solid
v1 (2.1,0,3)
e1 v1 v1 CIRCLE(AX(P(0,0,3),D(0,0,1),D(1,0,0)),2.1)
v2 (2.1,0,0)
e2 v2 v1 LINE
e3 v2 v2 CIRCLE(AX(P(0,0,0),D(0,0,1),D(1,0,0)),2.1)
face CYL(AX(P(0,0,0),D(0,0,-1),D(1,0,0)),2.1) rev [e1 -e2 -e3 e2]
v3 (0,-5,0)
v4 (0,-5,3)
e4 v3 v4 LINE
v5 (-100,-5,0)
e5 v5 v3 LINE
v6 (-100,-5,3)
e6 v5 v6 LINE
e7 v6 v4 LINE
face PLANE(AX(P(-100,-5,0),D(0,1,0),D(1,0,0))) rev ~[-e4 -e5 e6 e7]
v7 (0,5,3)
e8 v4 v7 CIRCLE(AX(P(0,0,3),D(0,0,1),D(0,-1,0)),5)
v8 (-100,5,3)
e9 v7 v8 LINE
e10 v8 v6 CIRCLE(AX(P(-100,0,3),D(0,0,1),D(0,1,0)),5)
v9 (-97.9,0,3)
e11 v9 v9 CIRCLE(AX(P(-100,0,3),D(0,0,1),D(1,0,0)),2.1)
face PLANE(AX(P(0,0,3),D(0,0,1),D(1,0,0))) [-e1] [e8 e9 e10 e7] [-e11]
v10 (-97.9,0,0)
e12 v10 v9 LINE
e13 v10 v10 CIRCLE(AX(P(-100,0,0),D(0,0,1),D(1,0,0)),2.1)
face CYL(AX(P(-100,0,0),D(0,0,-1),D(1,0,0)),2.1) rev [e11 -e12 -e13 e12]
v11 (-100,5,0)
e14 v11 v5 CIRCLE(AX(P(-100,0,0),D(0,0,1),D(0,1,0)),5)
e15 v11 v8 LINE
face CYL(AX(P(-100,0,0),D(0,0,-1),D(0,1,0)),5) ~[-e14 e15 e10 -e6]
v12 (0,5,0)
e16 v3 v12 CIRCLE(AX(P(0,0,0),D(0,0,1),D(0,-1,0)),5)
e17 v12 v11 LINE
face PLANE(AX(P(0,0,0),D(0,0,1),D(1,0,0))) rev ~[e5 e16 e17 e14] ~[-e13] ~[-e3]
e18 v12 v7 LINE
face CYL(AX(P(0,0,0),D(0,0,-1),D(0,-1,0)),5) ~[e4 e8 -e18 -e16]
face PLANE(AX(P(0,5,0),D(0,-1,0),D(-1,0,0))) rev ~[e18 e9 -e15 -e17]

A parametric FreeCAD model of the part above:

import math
import FreeCAD as App
import Part
import Sketcher
from FreeCAD import Vector
Q = App.Units.Quantity

doc = App.newDocument("Part")
params = doc.addObject("Spreadsheet::Sheet", "Params")
for row, (alias, value) in enumerate([
    ("sketch1_radius", "5 mm"),
    ("sketch1_diameter", "4.2 mm"),
    ("sketch1_width", "100 mm"),
    ("pad1_length", "3 mm"),
], start=1):
    params.set(f"A{row}", alias)
    params.set(f"B{row}", "=" + value)
    params.setAlias(f"B{row}", alias)

body = doc.addObject("PartDesign::Body", "Body")

sketch1 = doc.addObject("Sketcher::SketchObject", "Sketch")
body.addObject(sketch1)
sketch1.AttachmentSupport = (doc.XY_Plane, [""])
sketch1.MapMode = "FlatFace"
sketch1.addGeometry([
    Part.ArcOfCircle(Part.Circle(Vector(0, 0, 0), Vector(0, 0, 1), 5), math.radians(-90), math.radians(90)),
    Part.LineSegment(Vector(0, 5, 0), Vector(-100, 5, 0)),
    Part.ArcOfCircle(Part.Circle(Vector(-100, 0, 0), Vector(0, 0, 1), 5), math.radians(90), math.radians(270)),
    Part.LineSegment(Vector(-100, -5, 0), Vector(0, -5, 0)),
    Part.Circle(Vector(-100, 0, 0), Vector(0, 0, 1), 2.1),
    Part.Circle(Vector(0, 0, 0), Vector(0, 0, 1), 2.1),
], False)
sketch1.addConstraint([
    Sketcher.Constraint("Tangent", 0, 2, 1, 1),
    Sketcher.Constraint("Tangent", 1, 2, 2, 1),
    Sketcher.Constraint("Tangent", 2, 2, 3, 1),
    Sketcher.Constraint("Tangent", 3, 2, 0, 1),
    Sketcher.Constraint("Horizontal", 1),
    Sketcher.Constraint("Horizontal", 3),
    Sketcher.Constraint("Coincident", 0, 3, -1, 1),
    Sketcher.Constraint("Coincident", 5, 3, -1, 1),
    Sketcher.Constraint("Coincident", 4, 3, 2, 3),
    Sketcher.Constraint("Equal", 4, 5),
    Sketcher.Constraint("Radius", 0, Q("5 mm")),
    Sketcher.Constraint("Diameter", 4, Q("4.2 mm")),
    Sketcher.Constraint("DistanceX", 1, 2, 1, 1, Q("100 mm")),
])
sketch1.setExpression("Constraints[10]", "Params.sketch1_radius")
sketch1.setExpression("Constraints[11]", "Params.sketch1_diameter")
sketch1.setExpression("Constraints[12]", "Params.sketch1_width")
pad1 = doc.addObject("PartDesign::Pad", "Pad")
body.addObject(pad1)
pad1.Profile = sketch1
pad1.setExpression("Length", "Params.pad1_length")

doc.recompute()
